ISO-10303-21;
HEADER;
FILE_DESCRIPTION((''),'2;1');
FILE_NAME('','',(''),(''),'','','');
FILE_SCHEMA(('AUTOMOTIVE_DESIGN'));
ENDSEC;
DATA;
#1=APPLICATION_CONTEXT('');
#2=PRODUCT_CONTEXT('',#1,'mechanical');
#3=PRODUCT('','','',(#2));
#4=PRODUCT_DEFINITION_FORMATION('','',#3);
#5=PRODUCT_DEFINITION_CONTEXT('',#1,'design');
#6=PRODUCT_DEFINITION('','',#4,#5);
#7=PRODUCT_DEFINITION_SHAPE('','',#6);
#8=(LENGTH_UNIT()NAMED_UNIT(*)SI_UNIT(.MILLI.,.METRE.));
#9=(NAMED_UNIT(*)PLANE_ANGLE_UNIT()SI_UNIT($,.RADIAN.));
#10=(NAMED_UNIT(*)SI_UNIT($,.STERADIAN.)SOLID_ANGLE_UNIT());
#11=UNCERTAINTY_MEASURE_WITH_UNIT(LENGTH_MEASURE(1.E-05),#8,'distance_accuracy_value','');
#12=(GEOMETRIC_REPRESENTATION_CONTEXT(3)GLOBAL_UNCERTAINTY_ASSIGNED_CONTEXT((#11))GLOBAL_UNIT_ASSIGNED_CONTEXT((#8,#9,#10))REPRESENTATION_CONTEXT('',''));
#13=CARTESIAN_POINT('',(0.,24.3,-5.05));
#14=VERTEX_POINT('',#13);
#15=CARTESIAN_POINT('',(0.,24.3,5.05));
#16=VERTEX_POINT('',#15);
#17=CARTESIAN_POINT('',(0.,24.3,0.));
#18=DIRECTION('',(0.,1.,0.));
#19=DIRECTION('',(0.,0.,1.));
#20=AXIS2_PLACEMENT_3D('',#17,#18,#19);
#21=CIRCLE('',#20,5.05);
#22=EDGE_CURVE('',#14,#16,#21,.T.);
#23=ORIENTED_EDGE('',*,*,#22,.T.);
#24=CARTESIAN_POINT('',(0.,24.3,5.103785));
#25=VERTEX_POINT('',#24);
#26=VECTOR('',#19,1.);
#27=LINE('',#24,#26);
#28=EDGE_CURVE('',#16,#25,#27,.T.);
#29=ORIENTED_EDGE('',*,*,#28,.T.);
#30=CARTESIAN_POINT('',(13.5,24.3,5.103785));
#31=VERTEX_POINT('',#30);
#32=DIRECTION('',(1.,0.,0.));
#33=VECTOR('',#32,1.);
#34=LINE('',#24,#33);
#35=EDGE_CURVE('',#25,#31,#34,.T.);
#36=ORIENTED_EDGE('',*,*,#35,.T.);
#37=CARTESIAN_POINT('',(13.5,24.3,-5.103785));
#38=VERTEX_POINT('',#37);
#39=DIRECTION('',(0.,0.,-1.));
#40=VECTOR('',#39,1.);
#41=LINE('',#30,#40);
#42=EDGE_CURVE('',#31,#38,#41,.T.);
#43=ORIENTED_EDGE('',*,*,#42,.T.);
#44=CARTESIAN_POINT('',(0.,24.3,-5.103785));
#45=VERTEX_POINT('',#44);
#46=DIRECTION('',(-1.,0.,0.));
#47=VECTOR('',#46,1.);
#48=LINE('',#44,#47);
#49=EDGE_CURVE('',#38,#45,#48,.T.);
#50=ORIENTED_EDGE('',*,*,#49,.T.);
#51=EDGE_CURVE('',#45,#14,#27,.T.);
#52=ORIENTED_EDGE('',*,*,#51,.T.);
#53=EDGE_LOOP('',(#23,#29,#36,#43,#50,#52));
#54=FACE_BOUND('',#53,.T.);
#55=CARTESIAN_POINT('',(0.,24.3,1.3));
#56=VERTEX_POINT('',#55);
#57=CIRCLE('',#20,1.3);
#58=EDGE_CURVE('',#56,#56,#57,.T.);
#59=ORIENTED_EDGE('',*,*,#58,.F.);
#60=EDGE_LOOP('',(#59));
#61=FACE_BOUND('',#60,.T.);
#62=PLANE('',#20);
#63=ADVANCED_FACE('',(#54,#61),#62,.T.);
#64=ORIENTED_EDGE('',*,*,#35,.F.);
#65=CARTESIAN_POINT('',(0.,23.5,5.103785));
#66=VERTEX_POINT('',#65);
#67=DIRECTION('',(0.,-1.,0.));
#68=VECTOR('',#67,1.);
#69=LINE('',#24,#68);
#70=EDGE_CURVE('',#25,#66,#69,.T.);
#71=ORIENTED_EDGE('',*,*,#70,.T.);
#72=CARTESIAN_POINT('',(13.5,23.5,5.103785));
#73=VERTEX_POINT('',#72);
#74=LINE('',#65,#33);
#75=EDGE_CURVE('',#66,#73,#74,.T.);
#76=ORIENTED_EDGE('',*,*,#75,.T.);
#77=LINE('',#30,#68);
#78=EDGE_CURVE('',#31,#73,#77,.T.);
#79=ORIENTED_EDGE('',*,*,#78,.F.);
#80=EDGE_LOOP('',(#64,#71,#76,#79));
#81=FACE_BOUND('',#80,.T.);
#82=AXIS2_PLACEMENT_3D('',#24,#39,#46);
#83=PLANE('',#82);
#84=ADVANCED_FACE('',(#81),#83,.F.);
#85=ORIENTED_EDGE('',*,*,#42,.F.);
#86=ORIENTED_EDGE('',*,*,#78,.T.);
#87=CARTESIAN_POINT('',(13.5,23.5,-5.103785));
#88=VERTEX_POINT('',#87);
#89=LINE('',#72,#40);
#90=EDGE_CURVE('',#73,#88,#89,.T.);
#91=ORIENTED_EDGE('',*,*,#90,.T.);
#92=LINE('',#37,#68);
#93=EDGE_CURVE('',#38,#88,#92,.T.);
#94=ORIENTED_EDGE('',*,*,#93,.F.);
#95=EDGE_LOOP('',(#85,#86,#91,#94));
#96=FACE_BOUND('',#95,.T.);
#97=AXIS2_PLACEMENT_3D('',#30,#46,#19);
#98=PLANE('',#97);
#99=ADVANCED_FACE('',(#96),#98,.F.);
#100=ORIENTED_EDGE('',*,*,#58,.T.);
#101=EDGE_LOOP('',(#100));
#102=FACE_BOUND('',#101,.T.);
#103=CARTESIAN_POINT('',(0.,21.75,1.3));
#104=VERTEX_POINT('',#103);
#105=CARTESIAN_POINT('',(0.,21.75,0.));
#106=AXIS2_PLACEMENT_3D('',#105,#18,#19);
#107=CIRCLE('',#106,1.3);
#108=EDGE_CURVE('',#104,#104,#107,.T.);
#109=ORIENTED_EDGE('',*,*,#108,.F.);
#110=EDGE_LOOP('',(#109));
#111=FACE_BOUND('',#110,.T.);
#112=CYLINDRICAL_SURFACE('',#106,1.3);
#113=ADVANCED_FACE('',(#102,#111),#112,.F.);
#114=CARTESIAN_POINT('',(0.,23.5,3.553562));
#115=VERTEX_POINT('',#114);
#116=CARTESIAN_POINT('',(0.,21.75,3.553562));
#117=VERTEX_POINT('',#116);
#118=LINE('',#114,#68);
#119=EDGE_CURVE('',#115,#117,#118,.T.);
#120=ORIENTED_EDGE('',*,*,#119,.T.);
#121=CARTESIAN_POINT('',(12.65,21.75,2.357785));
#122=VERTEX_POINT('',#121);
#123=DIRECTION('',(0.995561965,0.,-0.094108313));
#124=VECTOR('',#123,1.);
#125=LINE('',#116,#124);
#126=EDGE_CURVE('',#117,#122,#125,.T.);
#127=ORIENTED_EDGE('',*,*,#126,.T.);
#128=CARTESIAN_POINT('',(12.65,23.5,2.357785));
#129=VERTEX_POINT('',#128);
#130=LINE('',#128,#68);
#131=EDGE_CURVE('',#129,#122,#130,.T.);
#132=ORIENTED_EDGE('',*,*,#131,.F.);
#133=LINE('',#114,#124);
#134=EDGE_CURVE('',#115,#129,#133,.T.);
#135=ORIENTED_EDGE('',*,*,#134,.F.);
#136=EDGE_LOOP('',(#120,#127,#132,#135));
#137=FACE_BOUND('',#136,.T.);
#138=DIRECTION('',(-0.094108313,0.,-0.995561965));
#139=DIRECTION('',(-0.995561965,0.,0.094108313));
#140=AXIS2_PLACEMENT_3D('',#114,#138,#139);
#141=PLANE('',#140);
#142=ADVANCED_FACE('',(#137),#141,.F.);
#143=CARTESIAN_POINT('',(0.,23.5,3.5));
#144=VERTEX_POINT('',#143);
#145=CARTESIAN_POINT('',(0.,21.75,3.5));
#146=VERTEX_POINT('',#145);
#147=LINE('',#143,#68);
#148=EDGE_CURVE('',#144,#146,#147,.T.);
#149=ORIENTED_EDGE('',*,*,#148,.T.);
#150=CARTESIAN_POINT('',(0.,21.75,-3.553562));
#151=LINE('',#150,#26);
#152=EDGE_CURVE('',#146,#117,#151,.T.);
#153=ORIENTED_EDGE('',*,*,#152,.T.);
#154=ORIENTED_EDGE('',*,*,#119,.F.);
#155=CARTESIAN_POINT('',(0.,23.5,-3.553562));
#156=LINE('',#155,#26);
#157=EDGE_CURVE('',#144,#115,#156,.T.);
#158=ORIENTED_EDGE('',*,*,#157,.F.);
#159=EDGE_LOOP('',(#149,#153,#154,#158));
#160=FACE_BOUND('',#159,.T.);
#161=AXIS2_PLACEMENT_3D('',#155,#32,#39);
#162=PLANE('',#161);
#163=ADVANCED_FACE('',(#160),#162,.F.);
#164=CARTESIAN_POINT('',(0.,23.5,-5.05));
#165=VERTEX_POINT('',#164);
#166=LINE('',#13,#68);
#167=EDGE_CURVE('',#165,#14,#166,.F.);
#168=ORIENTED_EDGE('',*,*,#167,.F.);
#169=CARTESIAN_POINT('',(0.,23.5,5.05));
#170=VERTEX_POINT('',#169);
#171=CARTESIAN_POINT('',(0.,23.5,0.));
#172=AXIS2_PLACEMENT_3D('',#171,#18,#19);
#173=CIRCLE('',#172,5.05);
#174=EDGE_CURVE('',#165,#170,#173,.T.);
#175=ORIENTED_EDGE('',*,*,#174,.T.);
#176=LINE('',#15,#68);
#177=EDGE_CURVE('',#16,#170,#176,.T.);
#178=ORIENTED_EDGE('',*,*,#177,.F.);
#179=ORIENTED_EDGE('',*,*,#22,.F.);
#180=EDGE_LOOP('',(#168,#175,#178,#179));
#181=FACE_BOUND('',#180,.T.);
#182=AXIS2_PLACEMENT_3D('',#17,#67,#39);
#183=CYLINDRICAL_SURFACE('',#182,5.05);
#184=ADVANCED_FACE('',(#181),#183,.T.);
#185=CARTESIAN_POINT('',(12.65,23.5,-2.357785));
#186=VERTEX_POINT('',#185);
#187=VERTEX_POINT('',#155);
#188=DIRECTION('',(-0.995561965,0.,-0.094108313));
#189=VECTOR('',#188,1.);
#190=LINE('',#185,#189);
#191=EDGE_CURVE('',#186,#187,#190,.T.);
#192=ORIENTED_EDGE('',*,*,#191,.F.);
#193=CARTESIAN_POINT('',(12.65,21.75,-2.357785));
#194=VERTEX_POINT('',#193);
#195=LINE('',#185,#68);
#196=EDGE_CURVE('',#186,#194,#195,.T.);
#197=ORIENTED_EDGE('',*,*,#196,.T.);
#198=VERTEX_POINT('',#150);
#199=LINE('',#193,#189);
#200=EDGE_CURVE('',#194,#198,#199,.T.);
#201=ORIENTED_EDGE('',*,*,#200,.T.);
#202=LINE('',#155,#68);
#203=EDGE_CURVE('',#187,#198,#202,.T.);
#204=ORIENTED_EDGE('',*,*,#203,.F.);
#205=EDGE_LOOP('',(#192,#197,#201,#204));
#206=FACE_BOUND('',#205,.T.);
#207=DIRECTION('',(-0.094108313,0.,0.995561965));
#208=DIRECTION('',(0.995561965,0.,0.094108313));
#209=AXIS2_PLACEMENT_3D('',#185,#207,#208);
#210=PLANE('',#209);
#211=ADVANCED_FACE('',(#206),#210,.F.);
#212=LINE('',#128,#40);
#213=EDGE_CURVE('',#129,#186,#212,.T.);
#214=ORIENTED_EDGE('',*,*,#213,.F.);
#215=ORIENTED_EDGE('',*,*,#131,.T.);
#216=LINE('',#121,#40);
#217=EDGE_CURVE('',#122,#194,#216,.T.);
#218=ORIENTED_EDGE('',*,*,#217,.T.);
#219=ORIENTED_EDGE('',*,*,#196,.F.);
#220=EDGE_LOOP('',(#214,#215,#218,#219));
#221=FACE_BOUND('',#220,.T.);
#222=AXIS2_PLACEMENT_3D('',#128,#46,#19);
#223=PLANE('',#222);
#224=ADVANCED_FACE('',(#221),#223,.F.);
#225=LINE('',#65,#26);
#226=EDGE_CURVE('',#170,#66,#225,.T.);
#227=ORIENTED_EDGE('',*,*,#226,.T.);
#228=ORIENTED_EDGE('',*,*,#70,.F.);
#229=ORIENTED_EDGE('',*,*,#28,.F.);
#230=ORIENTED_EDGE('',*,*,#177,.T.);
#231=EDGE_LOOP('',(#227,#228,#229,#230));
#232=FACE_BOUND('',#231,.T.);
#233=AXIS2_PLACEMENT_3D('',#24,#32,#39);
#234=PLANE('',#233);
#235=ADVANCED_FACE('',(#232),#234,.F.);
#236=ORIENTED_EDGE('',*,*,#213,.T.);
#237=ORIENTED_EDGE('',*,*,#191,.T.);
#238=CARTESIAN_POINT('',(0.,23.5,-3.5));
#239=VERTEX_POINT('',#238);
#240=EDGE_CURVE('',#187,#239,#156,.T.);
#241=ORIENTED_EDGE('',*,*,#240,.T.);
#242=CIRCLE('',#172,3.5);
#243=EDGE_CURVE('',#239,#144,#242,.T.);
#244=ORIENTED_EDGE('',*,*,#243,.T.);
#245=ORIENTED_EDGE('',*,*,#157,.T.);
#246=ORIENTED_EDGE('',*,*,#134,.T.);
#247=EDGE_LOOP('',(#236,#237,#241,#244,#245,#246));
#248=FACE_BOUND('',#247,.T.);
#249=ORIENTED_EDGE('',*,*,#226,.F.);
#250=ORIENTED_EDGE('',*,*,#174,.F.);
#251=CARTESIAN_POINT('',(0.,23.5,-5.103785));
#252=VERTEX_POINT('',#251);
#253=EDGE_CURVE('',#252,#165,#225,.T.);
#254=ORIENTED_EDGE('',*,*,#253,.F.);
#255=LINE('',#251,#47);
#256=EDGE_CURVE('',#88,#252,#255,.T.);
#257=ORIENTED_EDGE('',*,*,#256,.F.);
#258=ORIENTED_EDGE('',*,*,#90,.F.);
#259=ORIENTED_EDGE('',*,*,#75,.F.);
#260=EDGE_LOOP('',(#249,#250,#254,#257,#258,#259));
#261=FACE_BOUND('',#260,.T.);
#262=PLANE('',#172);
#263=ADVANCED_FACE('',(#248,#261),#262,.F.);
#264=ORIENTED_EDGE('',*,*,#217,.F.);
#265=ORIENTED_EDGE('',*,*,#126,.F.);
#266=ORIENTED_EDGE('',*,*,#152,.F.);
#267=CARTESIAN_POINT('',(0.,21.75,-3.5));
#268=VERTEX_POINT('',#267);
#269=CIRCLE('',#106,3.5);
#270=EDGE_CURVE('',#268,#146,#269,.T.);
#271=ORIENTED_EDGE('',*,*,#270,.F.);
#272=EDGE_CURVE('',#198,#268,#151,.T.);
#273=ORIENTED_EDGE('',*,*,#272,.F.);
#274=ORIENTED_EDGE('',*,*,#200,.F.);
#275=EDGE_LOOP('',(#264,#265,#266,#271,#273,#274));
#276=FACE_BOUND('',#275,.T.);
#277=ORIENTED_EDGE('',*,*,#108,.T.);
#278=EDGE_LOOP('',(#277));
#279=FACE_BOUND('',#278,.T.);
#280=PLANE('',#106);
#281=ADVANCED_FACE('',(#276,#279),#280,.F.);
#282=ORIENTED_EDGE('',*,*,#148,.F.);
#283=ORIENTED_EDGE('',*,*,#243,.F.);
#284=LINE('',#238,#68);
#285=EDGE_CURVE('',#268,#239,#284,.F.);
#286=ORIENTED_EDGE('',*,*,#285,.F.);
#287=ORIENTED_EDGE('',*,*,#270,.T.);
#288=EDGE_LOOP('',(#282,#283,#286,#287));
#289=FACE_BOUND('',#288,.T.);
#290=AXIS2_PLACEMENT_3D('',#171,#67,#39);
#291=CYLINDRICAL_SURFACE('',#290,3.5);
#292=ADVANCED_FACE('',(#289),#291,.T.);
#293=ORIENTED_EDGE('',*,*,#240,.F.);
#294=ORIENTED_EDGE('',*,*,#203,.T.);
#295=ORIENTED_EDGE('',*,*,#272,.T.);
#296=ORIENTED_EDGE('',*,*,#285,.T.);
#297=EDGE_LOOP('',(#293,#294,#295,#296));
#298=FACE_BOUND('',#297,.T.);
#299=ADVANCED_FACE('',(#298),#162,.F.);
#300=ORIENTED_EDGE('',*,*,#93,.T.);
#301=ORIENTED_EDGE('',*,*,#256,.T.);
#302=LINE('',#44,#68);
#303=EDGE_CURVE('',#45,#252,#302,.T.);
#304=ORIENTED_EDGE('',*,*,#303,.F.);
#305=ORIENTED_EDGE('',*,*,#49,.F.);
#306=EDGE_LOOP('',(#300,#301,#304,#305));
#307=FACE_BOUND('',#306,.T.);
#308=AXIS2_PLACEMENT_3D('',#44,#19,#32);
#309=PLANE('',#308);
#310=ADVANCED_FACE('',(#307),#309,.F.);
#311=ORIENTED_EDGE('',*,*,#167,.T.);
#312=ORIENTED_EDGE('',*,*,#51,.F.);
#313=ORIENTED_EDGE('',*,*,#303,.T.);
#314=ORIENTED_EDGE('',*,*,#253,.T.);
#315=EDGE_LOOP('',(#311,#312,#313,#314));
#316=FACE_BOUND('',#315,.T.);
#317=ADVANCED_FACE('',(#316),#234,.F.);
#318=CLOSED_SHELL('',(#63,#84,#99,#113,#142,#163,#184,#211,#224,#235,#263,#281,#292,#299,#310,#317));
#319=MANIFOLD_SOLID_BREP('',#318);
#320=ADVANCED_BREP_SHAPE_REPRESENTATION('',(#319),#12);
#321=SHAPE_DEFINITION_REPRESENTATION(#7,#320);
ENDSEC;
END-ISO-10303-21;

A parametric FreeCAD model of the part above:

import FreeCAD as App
import Part
import Sketcher
Q = App.Units.Quantity


def add_polygon(sketch, points):
    """Adds a closed chain of lines whose ends are joined by coincident constraints."""
    first, n = sketch.GeometryCount, len(points)
    for a, b in zip(points, points[1:] + points[:1]):
        sketch.addGeometry(Part.LineSegment(App.Vector(*a, 0), App.Vector(*b, 0)), False)
    for i in range(n):
        sketch.addConstraint(Sketcher.Constraint("Coincident", first + i, 2, first + (i + 1) % n, 1))

doc = App.newDocument("Part")
body = doc.addObject("PartDesign::Body", "Body")

sketch1 = body.newObject("Sketcher::SketchObject", "Sketch")
sketch1.AttachmentSupport = (doc.getObject("XZ_Plane"), [""])
sketch1.MapMode = "FlatFace"
sketch1.AttachmentOffset = App.Placement(App.Vector(0, 0, -22.625), App.Rotation())
sketch1.addGeometry(Part.Circle(App.Vector(0, 0, 0), App.Vector(0, 0, 1), 3.5), False)
sketch1.addConstraint(Sketcher.Constraint("Coincident", 0, 3, -1, 1))
sketch1.addConstraint(Sketcher.Constraint("Diameter", 0, Q("7 mm")))
pad1 = body.newObject("PartDesign::Pad", "Pad")
pad1.Profile = sketch1
pad1.Length = 1.75
pad1.Midplane = True

sketch2 = body.newObject("Sketcher::SketchObject", "Sketch001")
sketch2.AttachmentSupport = (doc.getObject("XZ_Plane"), [""])
sketch2.MapMode = "FlatFace"
sketch2.AttachmentOffset = App.Placement(App.Vector(0, 0, -22.625), App.Rotation())
add_polygon(sketch2, [(0, 3.6), (12.7, 2.4), (12.7, -2.4), (0, -3.6)])
sketch2.addConstraint(Sketcher.Constraint("Vertical", 1))
sketch2.addConstraint(Sketcher.Constraint("Vertical", 3))
sketch2.addConstraint(Sketcher.Constraint("Symmetric", 2, 2, 3, 2, -1, 1))
sketch2.addConstraint(Sketcher.Constraint("Equal", 0, 2))
sketch2.addConstraint(Sketcher.Constraint("Angle", 0, Q("-5.4 deg")))
sketch2.addConstraint(Sketcher.Constraint("DistanceX", -1, 1, 0, 2, Q("12.65 mm")))
sketch2.addConstraint(Sketcher.Constraint("DistanceY", 1, 2, 1, 1, Q("4.71557 mm")))
pad2 = body.newObject("PartDesign::Pad", "Pad001")
pad2.Profile = sketch2
pad2.Length = 1.75
pad2.Midplane = True

sketch3 = body.newObject("Sketcher::SketchObject", "Sketch002")
sketch3.AttachmentSupport = (doc.getObject("XZ_Plane"), [""])
sketch3.MapMode = "FlatFace"
sketch3.AttachmentOffset = App.Placement(App.Vector(0, 0, -23.9), App.Rotation())
sketch3.addGeometry(Part.Circle(App.Vector(0, 0, 0), App.Vector(0, 0, 1), 5), False)
sketch3.addConstraint(Sketcher.Constraint("Coincident", 0, 3, -1, 1))
sketch3.addConstraint(Sketcher.Constraint("Diameter", 0, Q("10.1 mm")))
pad3 = body.newObject("PartDesign::Pad", "Pad002")
pad3.Profile = sketch3
pad3.Length = 0.8
pad3.Midplane = True

sketch4 = body.newObject("Sketcher::SketchObject", "Sketch003")
sketch4.AttachmentSupport = (doc.getObject("XZ_Plane"), [""])
sketch4.MapMode = "FlatFace"
sketch4.AttachmentOffset = App.Placement(App.Vector(0, 0, -23.9), App.Rotation())
add_polygon(sketch4, [(0, -5), (0, 5), (14, 5), (14, -5)])
sketch4.addConstraint(Sketcher.Constraint("Vertical", 0))
sketch4.addConstraint(Sketcher.Constraint("Horizontal", 1))
sketch4.addConstraint(Sketcher.Constraint("Vertical", 2))
sketch4.addConstraint(Sketcher.Constraint("Horizontal", 3))
sketch4.addConstraint(Sketcher.Constraint("Symmetric", 0, 2, 3, 2, -1, 1))
sketch4.addConstraint(Sketcher.Constraint("DistanceX", 1, 1, 1, 2, Q("13.5 mm")))
sketch4.addConstraint(Sketcher.Constraint("DistanceY", 0, 1, 0, 2, Q("10.20757 mm")))
pad4 = body.newObject("PartDesign::Pad", "Pad003")
pad4.Profile = sketch4
pad4.Length = 0.8
pad4.Midplane = True

sketch5 = body.newObject("Sketcher::SketchObject", "Sketch004")
sketch5.AttachmentSupport = (doc.getObject("XZ_Plane"), [""])
sketch5.MapMode = "FlatFace"
sketch5.AttachmentOffset = App.Placement(App.Vector(0, 0, -23.025), App.Rotation())
sketch5.addGeometry(Part.Circle(App.Vector(0, 0, 0), App.Vector(0, 0, 1), 1.3), False)
sketch5.addConstraint(Sketcher.Constraint("Coincident", 0, 3, -1, 1))
sketch5.addConstraint(Sketcher.Constraint("Diameter", 0, Q("2.6 mm")))
pocket1 = body.newObject("PartDesign::Pocket", "Pocket")
pocket1.Profile = sketch5
pocket1.Length = 2.55
pocket1.Midplane = True

doc.recompute()
